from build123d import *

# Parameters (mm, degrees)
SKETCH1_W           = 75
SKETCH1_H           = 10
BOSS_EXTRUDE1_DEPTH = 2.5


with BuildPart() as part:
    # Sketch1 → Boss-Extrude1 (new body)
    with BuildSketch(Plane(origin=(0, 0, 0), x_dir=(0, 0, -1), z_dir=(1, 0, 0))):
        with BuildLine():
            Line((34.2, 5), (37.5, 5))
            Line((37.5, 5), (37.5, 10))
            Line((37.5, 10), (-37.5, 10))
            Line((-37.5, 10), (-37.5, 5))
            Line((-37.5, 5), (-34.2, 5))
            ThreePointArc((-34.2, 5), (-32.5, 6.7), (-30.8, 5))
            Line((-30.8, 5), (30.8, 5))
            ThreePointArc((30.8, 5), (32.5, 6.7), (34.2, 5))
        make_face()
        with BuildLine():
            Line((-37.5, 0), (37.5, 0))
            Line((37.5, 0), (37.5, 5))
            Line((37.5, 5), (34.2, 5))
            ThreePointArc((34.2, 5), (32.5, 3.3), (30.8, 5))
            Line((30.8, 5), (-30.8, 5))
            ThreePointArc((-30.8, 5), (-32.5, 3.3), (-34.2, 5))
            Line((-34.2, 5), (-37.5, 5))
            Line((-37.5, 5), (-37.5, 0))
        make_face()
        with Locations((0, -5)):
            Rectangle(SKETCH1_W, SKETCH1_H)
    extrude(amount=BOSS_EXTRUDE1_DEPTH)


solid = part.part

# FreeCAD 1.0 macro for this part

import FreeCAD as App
import Part
import Sketcher
from FreeCAD import Vector


def add_polygon(sketch, points):
    """Adds a closed chain of lines whose ends are joined by coincident constraints."""
    first, n = sketch.GeometryCount, len(points)
    for a, b in zip(points, points[1:] + points[:1]):
        sketch.addGeometry(Part.LineSegment(App.Vector(*a, 0), App.Vector(*b, 0)), False)
    for i in range(n):
        sketch.addConstraint(Sketcher.Constraint("Coincident", first + i, 2, first + (i + 1) % n, 1))

doc = App.newDocument("Part")
body = doc.addObject("PartDesign::Body", "Body")

sketch1 = body.newObject("Sketcher::SketchObject", "Sketch")
sketch1.AttachmentSupport = (doc.getObject("YZ_Plane"), [""])
sketch1.MapMode = "FlatFace"
add_polygon(sketch1, [(10, -37.5), (10, 37.5), (-10, 37.5), (-10, -37.5)])
sketch1.addGeometry(Part.Circle(Vector(5, 32.5, 0), Vector(0, 0, 1), 1.7), False)
sketch1.addGeometry(Part.Circle(Vector(5, -32.5, 0), Vector(0, 0, 1), 1.7), False)
sketch1.addConstraint(Sketcher.Constraint("Vertical", 0))
sketch1.addConstraint(Sketcher.Constraint("Horizontal", 1))
sketch1.addConstraint(Sketcher.Constraint("Vertical", 2))
sketch1.addConstraint(Sketcher.Constraint("Horizontal", 3))
sketch1.addConstraint(Sketcher.Constraint("Equal", 4, 5))
sketch1.addConstraint(Sketcher.Constraint("Symmetric", 0, 2, 2, 2, -1, 1))
sketch1.addConstraint(Sketcher.Constraint("Symmetric", 4, 3, 5, 3, -1))
sketch1.addConstraint(Sketcher.Constraint("Diameter", 4, 3.4))
sketch1.addConstraint(Sketcher.Constraint("DistanceX", 1, 2, 1, 1, 20.0))
sketch1.addConstraint(Sketcher.Constraint("DistanceY", 0, 1, 0, 2, 75.0))
sketch1.addConstraint(Sketcher.Constraint("DistanceX", -1, 1, 4, 3, 5.0))
sketch1.addConstraint(Sketcher.Constraint("DistanceY", 5, 3, 4, 3, 65.0))
pad1 = body.newObject("PartDesign::Pad", "Pad")
pad1.Profile = sketch1
pad1.Length = 2.5

doc.recompute()
